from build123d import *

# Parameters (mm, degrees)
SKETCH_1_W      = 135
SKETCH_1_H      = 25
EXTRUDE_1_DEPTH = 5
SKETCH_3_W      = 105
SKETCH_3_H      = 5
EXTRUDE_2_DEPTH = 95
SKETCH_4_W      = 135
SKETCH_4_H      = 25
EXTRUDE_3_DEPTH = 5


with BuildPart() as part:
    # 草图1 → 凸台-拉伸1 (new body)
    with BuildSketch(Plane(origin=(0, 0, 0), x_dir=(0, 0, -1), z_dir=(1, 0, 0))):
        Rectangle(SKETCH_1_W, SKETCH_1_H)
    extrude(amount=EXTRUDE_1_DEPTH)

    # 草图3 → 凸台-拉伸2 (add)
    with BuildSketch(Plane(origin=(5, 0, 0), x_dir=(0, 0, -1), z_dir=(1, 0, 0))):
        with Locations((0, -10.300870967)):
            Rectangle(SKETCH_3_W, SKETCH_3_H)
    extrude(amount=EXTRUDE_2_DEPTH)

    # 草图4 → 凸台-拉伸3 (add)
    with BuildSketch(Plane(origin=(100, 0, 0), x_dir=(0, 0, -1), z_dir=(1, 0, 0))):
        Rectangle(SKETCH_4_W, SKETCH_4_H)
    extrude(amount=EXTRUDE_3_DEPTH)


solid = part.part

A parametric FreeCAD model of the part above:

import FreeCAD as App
import Part
import Sketcher
from FreeCAD import Vector
Q = App.Units.Quantity

doc = App.newDocument("Part")
params = doc.addObject("Spreadsheet::Sheet", "Params")
for row, (alias, value) in enumerate([
    ("sketch1_width", "25 mm"),
    ("sketch1_height", "135 mm"),
    ("pad1_length", "5 mm"),
    ("sketch2_width", "5 mm"),
    ("sketch2_height", "105 mm"),
    ("pad2_length", "95 mm"),
    ("sketch3_width", "25 mm"),
    ("sketch3_height", "135 mm"),
    ("pad3_length", "5 mm"),
], start=1):
    params.set(f"A{row}", alias)
    params.set(f"B{row}", "=" + value)
    params.setAlias(f"B{row}", alias)

body = doc.addObject("PartDesign::Body", "Body")

# Sketch on YZ plane
sketch1 = body.newObject("Sketcher::SketchObject", "Sketch")
sketch1.AttachmentSupport = (doc.getObject("YZ_Plane"), [""])
sketch1.MapMode = "FlatFace"
sketch1.addGeometry([
    Part.LineSegment(Vector(12, 68, 0), Vector(-12, 68, 0)),
    Part.LineSegment(Vector(-12, 68, 0), Vector(-12, -68, 0)),
    Part.LineSegment(Vector(-12, -68, 0), Vector(12, -68, 0)),
    Part.LineSegment(Vector(12, -68, 0), Vector(12, 68, 0)),
], False)
sketch1.addConstraint([
    Sketcher.Constraint("Coincident", 0, 2, 1, 1),
    Sketcher.Constraint("Coincident", 1, 2, 2, 1),
    Sketcher.Constraint("Coincident", 2, 2, 3, 1),
    Sketcher.Constraint("Coincident", 3, 2, 0, 1),
    Sketcher.Constraint("Horizontal", 0),
    Sketcher.Constraint("Vertical", 1),
    Sketcher.Constraint("Horizontal", 2),
    Sketcher.Constraint("Vertical", 3),
    Sketcher.Constraint("Symmetric", 0, 2, 2, 2, -1, 1),
    Sketcher.Constraint("DistanceX", 0, 2, 0, 1, Q("25 mm")),
    Sketcher.Constraint("DistanceY", 1, 2, 1, 1, Q("135 mm")),
])
sketch1.setExpression("Constraints[9]", "Params.sketch1_width")
sketch1.setExpression("Constraints[10]", "Params.sketch1_height")
pad1 = body.newObject("PartDesign::Pad", "Pad")
pad1.Profile = sketch1
pad1.setExpression("Length", "Params.pad1_length")

# Sketch on YZ plane
sketch2 = body.newObject("Sketcher::SketchObject", "Sketch001")
sketch2.AttachmentSupport = (doc.getObject("YZ_Plane"), [""])
sketch2.MapMode = "FlatFace"
sketch2.AttachmentOffset = App.Placement(Vector(0, 0, 5), App.Rotation())
sketch2.addGeometry([
    Part.LineSegment(Vector(-8, 52, 0), Vector(-13, 52, 0)),
    Part.LineSegment(Vector(-13, 52, 0), Vector(-13, -52, 0)),
    Part.LineSegment(Vector(-13, -52, 0), Vector(-8, -52, 0)),
    Part.LineSegment(Vector(-8, -52, 0), Vector(-8, 52, 0)),
], False)
sketch2.addConstraint([
    Sketcher.Constraint("Coincident", 0, 2, 1, 1),
    Sketcher.Constraint("Coincident", 1, 2, 2, 1),
    Sketcher.Constraint("Coincident", 2, 2, 3, 1),
    Sketcher.Constraint("Coincident", 3, 2, 0, 1),
    Sketcher.Constraint("Horizontal", 0),
    Sketcher.Constraint("Vertical", 1),
    Sketcher.Constraint("Horizontal", 2),
    Sketcher.Constraint("Vertical", 3),
    Sketcher.Constraint("DistanceX", 0, 2, 0, 1, Q("5 mm")),
    Sketcher.Constraint("DistanceY", 1, 2, 1, 1, Q("105 mm")),
    Sketcher.Constraint("DistanceY", -1, 1, 0, 2, Q("52.5 mm")),
    Sketcher.Constraint("DistanceX", 0, 2, -1, 1, Q("12.800871 mm")),
])
sketch2.setExpression("Constraints[8]", "Params.sketch2_width")
sketch2.setExpression("Constraints[9]", "Params.sketch2_height")
pad2 = body.newObject("PartDesign::Pad", "Pad001")
pad2.Profile = sketch2
pad2.setExpression("Length", "Params.pad2_length")

# Sketch on YZ plane
sketch3 = body.newObject("Sketcher::SketchObject", "Sketch002")
sketch3.AttachmentSupport = (doc.getObject("YZ_Plane"), [""])
sketch3.MapMode = "FlatFace"
sketch3.AttachmentOffset = App.Placement(Vector(0, 0, 100), App.Rotation())
sketch3.addGeometry([
    Part.LineSegment(Vector(12, 68, 0), Vector(-12, 68, 0)),
    Part.LineSegment(Vector(-12, 68, 0), Vector(-12, -68, 0)),
    Part.LineSegment(Vector(-12, -68, 0), Vector(12, -68, 0)),
    Part.LineSegment(Vector(12, -68, 0), Vector(12, 68, 0)),
], False)
sketch3.addConstraint([
    Sketcher.Constraint("Coincident", 0, 2, 1, 1),
    Sketcher.Constraint("Coincident", 1, 2, 2, 1),
    Sketcher.Constraint("Coincident", 2, 2, 3, 1),
    Sketcher.Constraint("Coincident", 3, 2, 0, 1),
    Sketcher.Constraint("Horizontal", 0),
    Sketcher.Constraint("Vertical", 1),
    Sketcher.Constraint("Horizontal", 2),
    Sketcher.Constraint("Vertical", 3),
    Sketcher.Constraint("Symmetric", 0, 2, 2, 2, -1, 1),
    Sketcher.Constraint("DistanceX", 0, 2, 0, 1, Q("25 mm")),
    Sketcher.Constraint("DistanceY", 1, 2, 1, 1, Q("135 mm")),
])
sketch3.setExpression("Constraints[9]", "Params.sketch3_width")
sketch3.setExpression("Constraints[10]", "Params.sketch3_height")
pad3 = body.newObject("PartDesign::Pad", "Pad002")
pad3.Profile = sketch3
pad3.setExpression("Length", "Params.pad3_length")

doc.recompute()
